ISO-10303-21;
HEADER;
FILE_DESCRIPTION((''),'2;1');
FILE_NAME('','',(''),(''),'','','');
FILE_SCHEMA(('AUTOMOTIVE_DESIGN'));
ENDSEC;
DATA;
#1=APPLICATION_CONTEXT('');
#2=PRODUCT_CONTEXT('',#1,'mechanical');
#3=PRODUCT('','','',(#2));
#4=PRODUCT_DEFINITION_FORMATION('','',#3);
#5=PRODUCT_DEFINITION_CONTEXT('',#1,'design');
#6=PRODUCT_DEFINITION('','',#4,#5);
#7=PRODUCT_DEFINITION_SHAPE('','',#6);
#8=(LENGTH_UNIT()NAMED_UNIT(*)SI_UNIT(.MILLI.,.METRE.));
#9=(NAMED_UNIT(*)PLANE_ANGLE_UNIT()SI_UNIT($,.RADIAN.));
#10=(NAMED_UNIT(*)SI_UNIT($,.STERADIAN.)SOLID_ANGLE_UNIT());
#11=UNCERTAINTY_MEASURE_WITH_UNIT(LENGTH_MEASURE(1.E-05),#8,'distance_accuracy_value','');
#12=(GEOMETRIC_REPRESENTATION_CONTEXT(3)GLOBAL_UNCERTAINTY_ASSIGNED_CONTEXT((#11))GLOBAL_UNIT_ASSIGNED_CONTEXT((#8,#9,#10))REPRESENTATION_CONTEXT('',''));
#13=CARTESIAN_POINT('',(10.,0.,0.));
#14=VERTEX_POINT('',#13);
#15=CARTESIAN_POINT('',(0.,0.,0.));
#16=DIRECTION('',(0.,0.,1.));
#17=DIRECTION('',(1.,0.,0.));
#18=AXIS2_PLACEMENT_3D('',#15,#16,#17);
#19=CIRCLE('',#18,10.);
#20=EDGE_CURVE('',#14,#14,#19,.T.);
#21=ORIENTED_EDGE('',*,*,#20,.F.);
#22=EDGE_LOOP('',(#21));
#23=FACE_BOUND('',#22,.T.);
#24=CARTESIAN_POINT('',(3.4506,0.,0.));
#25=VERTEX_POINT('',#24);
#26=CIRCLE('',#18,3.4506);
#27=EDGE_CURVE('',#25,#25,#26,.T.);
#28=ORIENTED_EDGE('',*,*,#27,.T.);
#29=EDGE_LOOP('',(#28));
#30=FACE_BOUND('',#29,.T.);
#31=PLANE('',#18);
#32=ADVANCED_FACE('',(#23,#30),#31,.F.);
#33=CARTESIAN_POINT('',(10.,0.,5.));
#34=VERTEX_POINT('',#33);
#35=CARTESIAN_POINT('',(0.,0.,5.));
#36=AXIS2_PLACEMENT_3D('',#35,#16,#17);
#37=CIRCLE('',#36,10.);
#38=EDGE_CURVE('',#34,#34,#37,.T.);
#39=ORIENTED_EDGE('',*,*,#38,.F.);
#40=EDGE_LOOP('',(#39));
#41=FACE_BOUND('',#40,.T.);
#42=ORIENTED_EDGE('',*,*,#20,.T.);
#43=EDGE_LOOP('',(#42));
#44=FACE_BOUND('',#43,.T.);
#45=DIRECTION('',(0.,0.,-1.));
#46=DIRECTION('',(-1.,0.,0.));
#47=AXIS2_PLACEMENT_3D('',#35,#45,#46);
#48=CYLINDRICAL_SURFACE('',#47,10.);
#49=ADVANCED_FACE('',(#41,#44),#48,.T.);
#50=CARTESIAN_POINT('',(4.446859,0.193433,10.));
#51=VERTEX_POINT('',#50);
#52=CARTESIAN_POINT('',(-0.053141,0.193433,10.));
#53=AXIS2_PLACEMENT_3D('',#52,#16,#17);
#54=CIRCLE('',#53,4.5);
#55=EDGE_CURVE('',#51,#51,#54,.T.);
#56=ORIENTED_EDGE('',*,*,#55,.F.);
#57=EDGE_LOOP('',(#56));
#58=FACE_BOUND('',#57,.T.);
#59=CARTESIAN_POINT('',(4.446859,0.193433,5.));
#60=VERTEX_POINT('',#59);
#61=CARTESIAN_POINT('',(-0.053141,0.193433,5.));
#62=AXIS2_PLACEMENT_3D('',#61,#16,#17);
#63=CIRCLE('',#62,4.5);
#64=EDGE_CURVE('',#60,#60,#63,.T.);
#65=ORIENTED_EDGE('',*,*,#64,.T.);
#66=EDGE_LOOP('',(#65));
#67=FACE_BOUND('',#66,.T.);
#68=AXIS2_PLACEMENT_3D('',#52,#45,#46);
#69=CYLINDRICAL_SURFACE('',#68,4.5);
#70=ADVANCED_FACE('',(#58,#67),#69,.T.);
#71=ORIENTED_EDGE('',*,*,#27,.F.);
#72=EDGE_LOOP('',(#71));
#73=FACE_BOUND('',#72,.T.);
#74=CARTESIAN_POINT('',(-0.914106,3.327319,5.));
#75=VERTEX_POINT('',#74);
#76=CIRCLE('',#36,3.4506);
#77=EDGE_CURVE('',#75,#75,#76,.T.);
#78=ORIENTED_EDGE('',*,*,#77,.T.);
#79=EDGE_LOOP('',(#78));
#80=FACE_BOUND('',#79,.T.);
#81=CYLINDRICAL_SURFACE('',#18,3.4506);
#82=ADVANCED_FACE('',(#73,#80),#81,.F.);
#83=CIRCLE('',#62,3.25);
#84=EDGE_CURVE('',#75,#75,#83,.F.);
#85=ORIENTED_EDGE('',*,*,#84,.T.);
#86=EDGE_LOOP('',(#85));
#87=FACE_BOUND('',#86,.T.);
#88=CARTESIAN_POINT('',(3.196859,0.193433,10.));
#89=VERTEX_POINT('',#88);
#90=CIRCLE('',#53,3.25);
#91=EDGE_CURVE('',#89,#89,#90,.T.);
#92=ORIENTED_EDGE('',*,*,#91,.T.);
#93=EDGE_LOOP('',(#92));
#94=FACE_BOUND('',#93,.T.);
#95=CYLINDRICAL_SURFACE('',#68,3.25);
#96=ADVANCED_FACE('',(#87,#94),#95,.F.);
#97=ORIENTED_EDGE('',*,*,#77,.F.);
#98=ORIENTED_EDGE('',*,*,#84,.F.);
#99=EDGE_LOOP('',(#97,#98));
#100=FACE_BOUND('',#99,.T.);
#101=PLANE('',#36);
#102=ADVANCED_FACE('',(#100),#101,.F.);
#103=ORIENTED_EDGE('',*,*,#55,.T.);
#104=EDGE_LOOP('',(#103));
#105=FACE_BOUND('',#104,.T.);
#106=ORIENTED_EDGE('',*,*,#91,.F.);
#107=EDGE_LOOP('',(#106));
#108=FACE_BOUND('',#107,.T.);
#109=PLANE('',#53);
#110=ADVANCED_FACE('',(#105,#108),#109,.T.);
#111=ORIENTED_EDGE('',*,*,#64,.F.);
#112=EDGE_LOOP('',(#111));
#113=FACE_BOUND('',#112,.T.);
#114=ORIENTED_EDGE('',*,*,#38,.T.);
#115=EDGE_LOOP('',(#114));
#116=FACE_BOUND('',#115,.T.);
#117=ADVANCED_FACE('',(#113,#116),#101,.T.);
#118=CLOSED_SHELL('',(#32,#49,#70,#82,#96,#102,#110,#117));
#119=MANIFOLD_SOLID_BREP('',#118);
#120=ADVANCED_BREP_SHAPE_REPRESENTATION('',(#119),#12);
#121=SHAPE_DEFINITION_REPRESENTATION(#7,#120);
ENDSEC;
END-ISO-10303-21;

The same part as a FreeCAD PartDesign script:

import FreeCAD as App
import Part
import Sketcher

V = App.Vector
Q = App.Units.Quantity

doc = App.newDocument("Part")
body = doc.addObject("PartDesign::Body", "Body")

# Sketch on XY plane
sketch1 = body.newObject("Sketcher::SketchObject", "Sketch")
sketch1.AttachmentSupport = (doc.getObject("XY_Plane"), [""])
sketch1.MapMode = "FlatFace"
sketch1.addGeometry(Part.Circle(V(0, 0, 0), V(0, 0, 1), 10), False)
sketch1.addConstraint([
    Sketcher.Constraint("Coincident", 0, 3, -1, 1),
    Sketcher.Constraint("Diameter", 0, Q("20 mm")),
])
pad1 = body.newObject("PartDesign::Pad", "Pad")
pad1.Profile = sketch1
pad1.Length = 5

# Sketch on XY plane
sketch2 = body.newObject("Sketcher::SketchObject", "Sketch001")
sketch2.AttachmentSupport = (doc.getObject("XY_Plane"), [""])
sketch2.MapMode = "FlatFace"
sketch2.AttachmentOffset = App.Placement(V(0, 0, 5), App.Rotation())
sketch2.addGeometry([
    Part.Circle(V(-0.053141, 0.193433, 0), V(0, 0, 1), 4.5),
    Part.Circle(V(-0.053141, 0.193433, 0), V(0, 0, 1), 3.25),
], False)
sketch2.addConstraint([
    Sketcher.Constraint("Coincident", 1, 3, 0, 3),
    Sketcher.Constraint("Diameter", 0, Q("9 mm")),
    Sketcher.Constraint("Diameter", 1, Q("6.5 mm")),
    Sketcher.Constraint("DistanceX", 0, 3, -1, 1, Q("0.053141 mm")),
    Sketcher.Constraint("DistanceY", -1, 1, 0, 3, Q("0.193433 mm")),
])
pad2 = body.newObject("PartDesign::Pad", "Pad001")
pad2.Profile = sketch2
pad2.Length = 5

# Sketch on XY plane
sketch3 = body.newObject("Sketcher::SketchObject", "Sketch002")
sketch3.AttachmentSupport = (doc.getObject("XY_Plane"), [""])
sketch3.MapMode = "FlatFace"
sketch3.AttachmentOffset = App.Placement(V(0, 0, 5), App.Rotation())
sketch3.addGeometry(Part.Circle(V(0, 0, 0), V(0, 0, 1), 3.4506), False)
sketch3.addConstraint([
    Sketcher.Constraint("Coincident", 0, 3, -1, 1),
    Sketcher.Constraint("Diameter", 0, Q("6.9012 mm")),
])
pocket1 = body.newObject("PartDesign::Pocket", "Pocket")
pocket1.Profile = sketch3
pocket1.Length = 5

doc.recompute()
